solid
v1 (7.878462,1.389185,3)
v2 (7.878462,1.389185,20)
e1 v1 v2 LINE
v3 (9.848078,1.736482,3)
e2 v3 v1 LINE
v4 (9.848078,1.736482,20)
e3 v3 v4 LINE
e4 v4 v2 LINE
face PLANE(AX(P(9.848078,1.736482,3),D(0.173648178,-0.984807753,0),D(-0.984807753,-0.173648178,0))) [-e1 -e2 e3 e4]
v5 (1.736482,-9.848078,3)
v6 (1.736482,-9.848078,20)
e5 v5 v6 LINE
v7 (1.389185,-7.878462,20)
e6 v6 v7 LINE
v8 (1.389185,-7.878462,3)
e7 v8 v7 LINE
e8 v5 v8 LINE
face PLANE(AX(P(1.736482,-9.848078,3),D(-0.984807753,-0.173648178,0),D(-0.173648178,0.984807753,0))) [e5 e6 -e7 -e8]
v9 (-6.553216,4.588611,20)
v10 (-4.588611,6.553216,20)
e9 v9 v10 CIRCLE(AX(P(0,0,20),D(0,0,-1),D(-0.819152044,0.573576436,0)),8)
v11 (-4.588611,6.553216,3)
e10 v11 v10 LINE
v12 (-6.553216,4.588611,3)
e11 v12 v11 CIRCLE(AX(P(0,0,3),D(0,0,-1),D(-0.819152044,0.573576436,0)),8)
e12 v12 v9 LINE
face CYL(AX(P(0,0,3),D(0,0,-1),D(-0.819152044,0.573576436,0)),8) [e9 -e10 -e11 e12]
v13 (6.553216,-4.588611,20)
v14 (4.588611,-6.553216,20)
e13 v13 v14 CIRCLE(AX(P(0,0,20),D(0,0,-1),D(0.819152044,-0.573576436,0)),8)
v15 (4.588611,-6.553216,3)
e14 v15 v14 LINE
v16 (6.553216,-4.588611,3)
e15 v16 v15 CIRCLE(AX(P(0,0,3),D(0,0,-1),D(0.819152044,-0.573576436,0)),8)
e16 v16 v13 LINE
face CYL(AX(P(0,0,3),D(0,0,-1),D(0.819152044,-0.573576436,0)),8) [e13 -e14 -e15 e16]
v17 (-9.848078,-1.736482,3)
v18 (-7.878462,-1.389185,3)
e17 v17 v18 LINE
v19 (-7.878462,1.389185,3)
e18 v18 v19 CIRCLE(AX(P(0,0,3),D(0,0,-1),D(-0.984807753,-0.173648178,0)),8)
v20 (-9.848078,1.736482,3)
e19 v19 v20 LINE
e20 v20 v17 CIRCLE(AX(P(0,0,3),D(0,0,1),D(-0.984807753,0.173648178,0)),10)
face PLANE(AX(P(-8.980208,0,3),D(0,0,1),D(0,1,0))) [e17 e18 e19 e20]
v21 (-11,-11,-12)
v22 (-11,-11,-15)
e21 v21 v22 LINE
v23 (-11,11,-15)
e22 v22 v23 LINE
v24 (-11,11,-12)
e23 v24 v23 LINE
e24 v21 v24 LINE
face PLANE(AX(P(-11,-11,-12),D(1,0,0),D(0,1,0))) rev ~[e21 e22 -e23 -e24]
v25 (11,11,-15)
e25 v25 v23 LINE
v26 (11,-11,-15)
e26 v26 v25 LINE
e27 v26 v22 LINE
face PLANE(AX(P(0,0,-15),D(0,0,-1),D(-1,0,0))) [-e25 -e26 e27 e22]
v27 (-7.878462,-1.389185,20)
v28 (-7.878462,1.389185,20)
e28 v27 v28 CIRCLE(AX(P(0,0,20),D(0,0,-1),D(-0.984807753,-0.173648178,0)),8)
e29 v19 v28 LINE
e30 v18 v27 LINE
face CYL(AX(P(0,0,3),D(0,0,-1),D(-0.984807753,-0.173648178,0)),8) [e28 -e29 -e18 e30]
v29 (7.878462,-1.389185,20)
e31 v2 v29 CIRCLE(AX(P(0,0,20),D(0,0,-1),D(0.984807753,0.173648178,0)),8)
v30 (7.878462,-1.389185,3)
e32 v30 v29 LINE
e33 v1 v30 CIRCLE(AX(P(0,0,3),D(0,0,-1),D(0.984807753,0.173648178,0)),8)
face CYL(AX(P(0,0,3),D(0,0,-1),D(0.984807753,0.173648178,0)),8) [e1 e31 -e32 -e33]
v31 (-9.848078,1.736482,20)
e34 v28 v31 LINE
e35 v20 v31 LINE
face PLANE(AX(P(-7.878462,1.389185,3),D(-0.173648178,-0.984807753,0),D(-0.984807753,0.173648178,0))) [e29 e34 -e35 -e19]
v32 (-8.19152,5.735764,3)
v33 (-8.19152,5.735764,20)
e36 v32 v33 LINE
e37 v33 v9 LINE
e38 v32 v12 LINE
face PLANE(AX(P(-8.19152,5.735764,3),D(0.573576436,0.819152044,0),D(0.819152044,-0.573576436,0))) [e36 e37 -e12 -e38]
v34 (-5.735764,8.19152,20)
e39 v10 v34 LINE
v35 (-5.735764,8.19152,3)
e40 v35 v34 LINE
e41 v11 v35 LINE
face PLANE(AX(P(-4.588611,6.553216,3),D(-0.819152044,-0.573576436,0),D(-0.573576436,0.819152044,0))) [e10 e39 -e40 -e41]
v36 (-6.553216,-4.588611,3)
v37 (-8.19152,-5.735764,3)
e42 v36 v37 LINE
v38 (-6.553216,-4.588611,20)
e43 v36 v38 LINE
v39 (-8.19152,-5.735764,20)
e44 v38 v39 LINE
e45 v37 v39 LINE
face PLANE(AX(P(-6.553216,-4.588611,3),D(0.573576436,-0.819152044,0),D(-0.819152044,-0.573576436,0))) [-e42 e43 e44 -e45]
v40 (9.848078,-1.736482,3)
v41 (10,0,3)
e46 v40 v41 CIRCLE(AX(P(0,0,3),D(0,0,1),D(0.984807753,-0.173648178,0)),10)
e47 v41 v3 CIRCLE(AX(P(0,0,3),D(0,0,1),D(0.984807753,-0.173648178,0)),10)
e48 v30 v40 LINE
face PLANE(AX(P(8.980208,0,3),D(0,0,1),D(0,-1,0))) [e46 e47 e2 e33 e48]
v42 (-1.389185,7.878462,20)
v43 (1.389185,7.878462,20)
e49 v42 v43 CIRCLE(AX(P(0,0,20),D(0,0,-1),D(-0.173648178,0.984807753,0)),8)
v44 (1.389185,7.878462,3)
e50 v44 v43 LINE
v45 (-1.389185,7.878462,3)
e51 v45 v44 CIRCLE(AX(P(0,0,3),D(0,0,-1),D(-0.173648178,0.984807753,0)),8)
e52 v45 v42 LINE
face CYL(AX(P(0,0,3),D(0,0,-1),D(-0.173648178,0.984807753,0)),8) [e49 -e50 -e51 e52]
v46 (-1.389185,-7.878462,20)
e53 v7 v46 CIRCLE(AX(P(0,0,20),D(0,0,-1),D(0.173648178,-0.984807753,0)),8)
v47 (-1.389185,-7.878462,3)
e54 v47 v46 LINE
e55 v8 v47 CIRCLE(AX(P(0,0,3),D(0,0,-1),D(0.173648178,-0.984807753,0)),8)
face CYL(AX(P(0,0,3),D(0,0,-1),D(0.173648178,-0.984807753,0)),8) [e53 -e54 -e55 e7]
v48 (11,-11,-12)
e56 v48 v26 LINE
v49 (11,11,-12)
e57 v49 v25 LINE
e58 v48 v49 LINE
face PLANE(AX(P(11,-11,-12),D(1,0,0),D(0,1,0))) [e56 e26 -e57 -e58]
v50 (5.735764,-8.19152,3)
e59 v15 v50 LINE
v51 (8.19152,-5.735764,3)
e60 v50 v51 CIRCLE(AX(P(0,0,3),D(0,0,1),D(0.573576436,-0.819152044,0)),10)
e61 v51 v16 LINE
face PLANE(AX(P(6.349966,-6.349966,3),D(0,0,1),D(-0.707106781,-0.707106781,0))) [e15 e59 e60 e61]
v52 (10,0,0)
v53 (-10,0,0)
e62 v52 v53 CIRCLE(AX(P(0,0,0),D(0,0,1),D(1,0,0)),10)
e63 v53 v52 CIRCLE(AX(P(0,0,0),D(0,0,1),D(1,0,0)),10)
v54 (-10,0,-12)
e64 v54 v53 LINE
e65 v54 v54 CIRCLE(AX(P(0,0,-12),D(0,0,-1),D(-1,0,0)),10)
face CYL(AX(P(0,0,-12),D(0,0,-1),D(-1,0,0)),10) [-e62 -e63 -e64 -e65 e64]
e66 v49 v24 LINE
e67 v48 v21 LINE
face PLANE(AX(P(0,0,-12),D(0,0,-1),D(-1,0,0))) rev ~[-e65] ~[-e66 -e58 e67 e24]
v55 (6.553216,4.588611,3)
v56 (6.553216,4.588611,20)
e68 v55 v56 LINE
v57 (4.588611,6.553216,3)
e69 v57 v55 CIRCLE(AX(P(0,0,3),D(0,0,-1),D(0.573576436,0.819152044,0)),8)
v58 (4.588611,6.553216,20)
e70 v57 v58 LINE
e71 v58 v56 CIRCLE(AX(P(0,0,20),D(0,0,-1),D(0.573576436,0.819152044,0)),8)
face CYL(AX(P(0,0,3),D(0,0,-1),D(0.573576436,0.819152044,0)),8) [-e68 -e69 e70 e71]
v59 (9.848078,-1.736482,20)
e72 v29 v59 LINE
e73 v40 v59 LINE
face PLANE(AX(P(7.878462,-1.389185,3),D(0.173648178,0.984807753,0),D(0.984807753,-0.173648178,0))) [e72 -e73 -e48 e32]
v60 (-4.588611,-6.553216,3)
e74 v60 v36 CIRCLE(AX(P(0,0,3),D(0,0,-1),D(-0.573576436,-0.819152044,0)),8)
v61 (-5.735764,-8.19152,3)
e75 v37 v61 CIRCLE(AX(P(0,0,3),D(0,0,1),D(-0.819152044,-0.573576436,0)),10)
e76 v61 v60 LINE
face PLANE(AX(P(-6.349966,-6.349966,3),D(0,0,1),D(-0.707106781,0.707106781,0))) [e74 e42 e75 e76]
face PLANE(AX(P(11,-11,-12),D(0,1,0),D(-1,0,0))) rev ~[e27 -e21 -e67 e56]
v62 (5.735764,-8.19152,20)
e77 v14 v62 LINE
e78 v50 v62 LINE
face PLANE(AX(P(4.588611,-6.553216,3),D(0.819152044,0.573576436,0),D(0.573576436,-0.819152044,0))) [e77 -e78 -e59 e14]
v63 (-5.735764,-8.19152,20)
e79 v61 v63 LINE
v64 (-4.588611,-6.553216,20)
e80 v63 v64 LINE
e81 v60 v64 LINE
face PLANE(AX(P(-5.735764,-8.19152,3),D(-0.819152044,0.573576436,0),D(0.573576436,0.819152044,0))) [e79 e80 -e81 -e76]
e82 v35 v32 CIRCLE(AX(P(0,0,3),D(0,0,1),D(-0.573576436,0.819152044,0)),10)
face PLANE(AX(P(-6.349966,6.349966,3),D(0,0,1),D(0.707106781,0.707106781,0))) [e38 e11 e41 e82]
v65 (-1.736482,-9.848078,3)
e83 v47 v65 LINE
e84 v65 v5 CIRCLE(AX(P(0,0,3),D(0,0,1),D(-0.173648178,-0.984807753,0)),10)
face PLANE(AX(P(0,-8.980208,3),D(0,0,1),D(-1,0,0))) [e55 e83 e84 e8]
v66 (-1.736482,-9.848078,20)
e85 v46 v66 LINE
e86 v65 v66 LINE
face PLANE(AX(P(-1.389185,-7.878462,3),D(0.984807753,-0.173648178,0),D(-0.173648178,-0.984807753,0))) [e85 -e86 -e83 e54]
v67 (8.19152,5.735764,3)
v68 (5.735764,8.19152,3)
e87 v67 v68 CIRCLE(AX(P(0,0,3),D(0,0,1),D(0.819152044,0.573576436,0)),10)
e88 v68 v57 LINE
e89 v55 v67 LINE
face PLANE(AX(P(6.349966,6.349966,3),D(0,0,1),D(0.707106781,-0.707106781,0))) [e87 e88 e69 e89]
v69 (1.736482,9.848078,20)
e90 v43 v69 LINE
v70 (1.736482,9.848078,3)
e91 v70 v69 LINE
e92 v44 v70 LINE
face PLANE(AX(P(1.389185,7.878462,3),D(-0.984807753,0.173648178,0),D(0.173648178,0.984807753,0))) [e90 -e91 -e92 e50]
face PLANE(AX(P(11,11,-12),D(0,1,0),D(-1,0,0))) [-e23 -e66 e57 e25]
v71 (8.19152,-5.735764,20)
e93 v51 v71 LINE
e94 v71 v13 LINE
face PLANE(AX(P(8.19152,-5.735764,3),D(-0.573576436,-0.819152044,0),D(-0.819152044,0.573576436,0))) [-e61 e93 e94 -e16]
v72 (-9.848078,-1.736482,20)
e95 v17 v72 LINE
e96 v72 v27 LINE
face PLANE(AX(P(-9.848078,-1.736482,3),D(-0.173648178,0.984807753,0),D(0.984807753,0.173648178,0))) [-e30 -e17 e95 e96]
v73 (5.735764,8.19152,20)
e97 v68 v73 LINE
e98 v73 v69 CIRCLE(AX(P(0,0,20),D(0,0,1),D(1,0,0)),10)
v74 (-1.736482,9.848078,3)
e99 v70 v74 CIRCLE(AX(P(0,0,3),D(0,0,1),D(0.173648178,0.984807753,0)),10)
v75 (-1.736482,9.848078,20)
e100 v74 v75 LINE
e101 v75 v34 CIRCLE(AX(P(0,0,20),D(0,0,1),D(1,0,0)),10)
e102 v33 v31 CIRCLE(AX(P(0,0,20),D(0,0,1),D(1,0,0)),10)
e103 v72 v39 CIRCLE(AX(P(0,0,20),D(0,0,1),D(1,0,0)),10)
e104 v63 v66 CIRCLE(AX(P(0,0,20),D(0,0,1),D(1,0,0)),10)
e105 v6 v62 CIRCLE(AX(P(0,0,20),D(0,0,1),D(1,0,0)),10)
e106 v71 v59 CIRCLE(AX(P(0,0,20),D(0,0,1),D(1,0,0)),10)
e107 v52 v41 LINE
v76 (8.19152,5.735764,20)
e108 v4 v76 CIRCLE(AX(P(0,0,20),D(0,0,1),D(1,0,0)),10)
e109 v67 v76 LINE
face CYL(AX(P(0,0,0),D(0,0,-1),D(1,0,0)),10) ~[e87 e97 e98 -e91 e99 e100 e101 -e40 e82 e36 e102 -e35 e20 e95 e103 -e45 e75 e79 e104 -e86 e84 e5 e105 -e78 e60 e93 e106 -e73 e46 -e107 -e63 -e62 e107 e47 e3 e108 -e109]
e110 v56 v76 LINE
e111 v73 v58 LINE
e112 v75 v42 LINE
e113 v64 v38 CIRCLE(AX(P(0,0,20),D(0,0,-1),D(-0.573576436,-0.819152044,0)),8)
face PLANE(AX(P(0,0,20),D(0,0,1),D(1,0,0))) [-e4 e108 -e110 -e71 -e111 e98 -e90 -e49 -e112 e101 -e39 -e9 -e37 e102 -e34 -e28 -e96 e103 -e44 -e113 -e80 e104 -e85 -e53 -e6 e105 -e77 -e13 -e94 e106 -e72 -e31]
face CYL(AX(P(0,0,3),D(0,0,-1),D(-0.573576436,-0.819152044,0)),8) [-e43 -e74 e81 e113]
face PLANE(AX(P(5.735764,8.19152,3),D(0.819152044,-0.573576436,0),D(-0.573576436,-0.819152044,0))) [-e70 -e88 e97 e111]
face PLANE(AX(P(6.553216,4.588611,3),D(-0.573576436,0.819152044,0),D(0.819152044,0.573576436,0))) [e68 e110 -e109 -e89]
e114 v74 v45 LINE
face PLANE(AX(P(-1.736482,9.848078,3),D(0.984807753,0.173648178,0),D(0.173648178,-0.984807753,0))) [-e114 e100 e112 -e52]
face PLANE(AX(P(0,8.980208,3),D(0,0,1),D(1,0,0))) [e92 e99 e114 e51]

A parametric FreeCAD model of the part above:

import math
import FreeCAD as App
import Part
import Sketcher
from FreeCAD import Vector
Q = App.Units.Quantity

doc = App.newDocument("Part")
params = doc.addObject("Spreadsheet::Sheet", "Params")
for row, (alias, value) in enumerate([
    ("sketch1_diameter", "20 mm"),
    ("pad1_length", "20 mm"),
    ("sketch2_radius", "8 mm"),
    ("sketch2_radius2", "10 mm"),
    ("pocket1_length", "17 mm"),
    ("sketch3_diameter", "20 mm"),
    ("pad2_length", "12 mm"),
    ("sketch4_width", "22 mm"),
    ("pad3_length", "3 mm"),
], start=1):
    params.set(f"A{row}", alias)
    params.set(f"B{row}", "=" + value)
    params.setAlias(f"B{row}", alias)

body = doc.addObject("PartDesign::Body", "Body")

# Sketch on XY plane
sketch1 = body.newObject("Sketcher::SketchObject", "Sketch")
sketch1.AttachmentSupport = (doc.getObject("XY_Plane"), [""])
sketch1.MapMode = "FlatFace"
sketch1.addGeometry(Part.Circle(Vector(0, 0, 0), Vector(0, 0, 1), 10), False)
sketch1.addConstraint([
    Sketcher.Constraint("Coincident", 0, 3, -1, 1),
    Sketcher.Constraint("Diameter", 0, Q("20 mm")),
])
sketch1.setExpression("Constraints[1]", "Params.sketch1_diameter")
pad1 = body.newObject("PartDesign::Pad", "Pad")
pad1.Profile = sketch1
pad1.setExpression("Length", "Params.pad1_length")

# Sketch on XY plane
sketch2 = body.newObject("Sketcher::SketchObject", "Sketch001")
sketch2.AttachmentSupport = (doc.getObject("XY_Plane"), [""])
sketch2.MapMode = "FlatFace"
sketch2.AttachmentOffset = App.Placement(Vector(0, 0, 3), App.Rotation())
sketch2.addGeometry([
    Part.LineSegment(Vector(-1.7, 9.8, 0), Vector(-1.4, 7.9, 0)),
    Part.ArcOfCircle(Part.Circle(Vector(0, 0, 0), Vector(0, 0, 1), 8), math.radians(80), math.radians(100)),
    Part.LineSegment(Vector(1.4, 7.9, 0), Vector(1.7, 9.8, 0)),
    Part.ArcOfCircle(Part.Circle(Vector(0, 0, 0), Vector(0, 0, 1), 10), math.radians(80), math.radians(100)),
], False)
sketch2.addConstraint([
    Sketcher.Constraint("Coincident", 0, 2, 1, 2),
    Sketcher.Constraint("Coincident", 1, 1, 2, 1),
    Sketcher.Constraint("Coincident", 2, 2, 3, 1),
    Sketcher.Constraint("Coincident", 3, 2, 0, 1),
    Sketcher.Constraint("Coincident", 1, 3, -1, 1),
    Sketcher.Constraint("Coincident", 3, 3, -1, 1),
    Sketcher.Constraint("Horizontal", 0, 2, 1, 1),
    Sketcher.Constraint("Horizontal", 2, 2, 3, 2),
    Sketcher.Constraint("Radius", 1, Q("8 mm")),
    Sketcher.Constraint("Radius", 3, Q("10 mm")),
    Sketcher.Constraint("Angle", 0, Q("-80 deg")),
    Sketcher.Constraint("DistanceX", -1, 1, 2, 2, Q("1.736482 mm")),
])
sketch2.setExpression("Constraints[8]", "Params.sketch2_radius")
sketch2.setExpression("Constraints[9]", "Params.sketch2_radius2")
pocket1 = body.newObject("PartDesign::Pocket", "Pocket")
pocket1.Profile = sketch2
pocket1.setExpression("Length", "Params.pocket1_length")
pocket1.Reversed = True
doc.recompute()

polarpattern = body.newObject("PartDesign::PolarPattern", "PolarPattern")
polarpattern.Originals = [pocket1]
polarpattern.Axis = (doc.getObject("Z_Axis"), [""])
polarpattern.Angle = 360
polarpattern.Occurrences = 8
body.Tip = polarpattern

# Sketch on XY plane
sketch3 = body.newObject("Sketcher::SketchObject", "Sketch002")
sketch3.AttachmentSupport = (doc.getObject("XY_Plane"), [""])
sketch3.MapMode = "FlatFace"
sketch3.AttachmentOffset = App.Placement(Vector(0, 0, -12), App.Rotation())
sketch3.addGeometry(Part.Circle(Vector(0, 0, 0), Vector(0, 0, 1), 10), False)
sketch3.addConstraint([
    Sketcher.Constraint("Coincident", 0, 3, -1, 1),
    Sketcher.Constraint("Diameter", 0, Q("20 mm")),
])
sketch3.setExpression("Constraints[1]", "Params.sketch3_diameter")
pad2 = body.newObject("PartDesign::Pad", "Pad001")
pad2.Profile = sketch3
pad2.setExpression("Length", "Params.pad2_length")

# Sketch on XY plane
sketch4 = body.newObject("Sketcher::SketchObject", "Sketch003")
sketch4.AttachmentSupport = (doc.getObject("XY_Plane"), [""])
sketch4.MapMode = "FlatFace"
sketch4.AttachmentOffset = App.Placement(Vector(0, 0, -12), App.Rotation())
sketch4.addGeometry([
    Part.LineSegment(Vector(11, 11, 0), Vector(11, -11, 0)),
    Part.LineSegment(Vector(11, -11, 0), Vector(-11, -11, 0)),
    Part.LineSegment(Vector(-11, -11, 0), Vector(-11, 11, 0)),
    Part.LineSegment(Vector(-11, 11, 0), Vector(11, 11, 0)),
], False)
sketch4.addConstraint([
    Sketcher.Constraint("Coincident", 0, 2, 1, 1),
    Sketcher.Constraint("Coincident", 1, 2, 2, 1),
    Sketcher.Constraint("Coincident", 2, 2, 3, 1),
    Sketcher.Constraint("Coincident", 3, 2, 0, 1),
    Sketcher.Constraint("Vertical", 0),
    Sketcher.Constraint("Horizontal", 1),
    Sketcher.Constraint("Vertical", 2),
    Sketcher.Constraint("Horizontal", 3),
    Sketcher.Constraint("Symmetric", 0, 2, 2, 2, -1, 1),
    Sketcher.Constraint("Equal", 3, 0),
    Sketcher.Constraint("DistanceX", 1, 2, 1, 1, Q("22 mm")),
])
sketch4.setExpression("Constraints[10]", "Params.sketch4_width")
pad3 = body.newObject("PartDesign::Pad", "Pad002")
pad3.Profile = sketch4
pad3.setExpression("Length", "Params.pad3_length")
pad3.Reversed = True

doc.recompute()
